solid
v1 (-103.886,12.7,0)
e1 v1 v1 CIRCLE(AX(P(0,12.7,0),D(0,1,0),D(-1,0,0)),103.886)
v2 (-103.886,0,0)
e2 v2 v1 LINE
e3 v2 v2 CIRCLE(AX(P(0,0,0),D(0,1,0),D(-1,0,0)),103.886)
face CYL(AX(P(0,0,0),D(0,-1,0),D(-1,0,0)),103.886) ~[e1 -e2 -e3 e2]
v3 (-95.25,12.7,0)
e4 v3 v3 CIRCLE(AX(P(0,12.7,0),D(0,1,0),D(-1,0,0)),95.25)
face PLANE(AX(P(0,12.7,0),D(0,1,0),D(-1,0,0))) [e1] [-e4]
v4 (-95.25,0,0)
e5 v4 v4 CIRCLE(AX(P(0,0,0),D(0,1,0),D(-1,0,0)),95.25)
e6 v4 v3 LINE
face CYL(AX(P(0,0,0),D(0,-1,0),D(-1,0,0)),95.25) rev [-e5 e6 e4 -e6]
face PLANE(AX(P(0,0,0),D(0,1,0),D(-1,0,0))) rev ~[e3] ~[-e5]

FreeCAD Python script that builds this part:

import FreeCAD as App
import Part
import Sketcher
Q = App.Units.Quantity

doc = App.newDocument("Part")
body = doc.addObject("PartDesign::Body", "Body")

# Sketch on XZ plane
sketch1 = body.newObject("Sketcher::SketchObject", "Sketch")
sketch1.AttachmentSupport = (doc.getObject("XZ_Plane"), [""])
sketch1.MapMode = "FlatFace"
sketch1.addGeometry([
    Part.Circle(App.Vector(0, 0, 0), App.Vector(0, 0, 1), 103.886),
    Part.Circle(App.Vector(0, 0, 0), App.Vector(0, 0, 1), 95.25),
], False)
sketch1.addConstraint([
    Sketcher.Constraint("Coincident", 0, 3, -1, 1),
    Sketcher.Constraint("Coincident", 1, 3, -1, 1),
    Sketcher.Constraint("Diameter", 1, Q("7.5 in")),
    Sketcher.Constraint("Diameter", 0, Q("8.18 in")),
])
pad1 = body.newObject("PartDesign::Pad", "Pad")
pad1.Profile = sketch1
pad1.Length = Q("0.5 in")
pad1.Reversed = True

doc.recompute()
